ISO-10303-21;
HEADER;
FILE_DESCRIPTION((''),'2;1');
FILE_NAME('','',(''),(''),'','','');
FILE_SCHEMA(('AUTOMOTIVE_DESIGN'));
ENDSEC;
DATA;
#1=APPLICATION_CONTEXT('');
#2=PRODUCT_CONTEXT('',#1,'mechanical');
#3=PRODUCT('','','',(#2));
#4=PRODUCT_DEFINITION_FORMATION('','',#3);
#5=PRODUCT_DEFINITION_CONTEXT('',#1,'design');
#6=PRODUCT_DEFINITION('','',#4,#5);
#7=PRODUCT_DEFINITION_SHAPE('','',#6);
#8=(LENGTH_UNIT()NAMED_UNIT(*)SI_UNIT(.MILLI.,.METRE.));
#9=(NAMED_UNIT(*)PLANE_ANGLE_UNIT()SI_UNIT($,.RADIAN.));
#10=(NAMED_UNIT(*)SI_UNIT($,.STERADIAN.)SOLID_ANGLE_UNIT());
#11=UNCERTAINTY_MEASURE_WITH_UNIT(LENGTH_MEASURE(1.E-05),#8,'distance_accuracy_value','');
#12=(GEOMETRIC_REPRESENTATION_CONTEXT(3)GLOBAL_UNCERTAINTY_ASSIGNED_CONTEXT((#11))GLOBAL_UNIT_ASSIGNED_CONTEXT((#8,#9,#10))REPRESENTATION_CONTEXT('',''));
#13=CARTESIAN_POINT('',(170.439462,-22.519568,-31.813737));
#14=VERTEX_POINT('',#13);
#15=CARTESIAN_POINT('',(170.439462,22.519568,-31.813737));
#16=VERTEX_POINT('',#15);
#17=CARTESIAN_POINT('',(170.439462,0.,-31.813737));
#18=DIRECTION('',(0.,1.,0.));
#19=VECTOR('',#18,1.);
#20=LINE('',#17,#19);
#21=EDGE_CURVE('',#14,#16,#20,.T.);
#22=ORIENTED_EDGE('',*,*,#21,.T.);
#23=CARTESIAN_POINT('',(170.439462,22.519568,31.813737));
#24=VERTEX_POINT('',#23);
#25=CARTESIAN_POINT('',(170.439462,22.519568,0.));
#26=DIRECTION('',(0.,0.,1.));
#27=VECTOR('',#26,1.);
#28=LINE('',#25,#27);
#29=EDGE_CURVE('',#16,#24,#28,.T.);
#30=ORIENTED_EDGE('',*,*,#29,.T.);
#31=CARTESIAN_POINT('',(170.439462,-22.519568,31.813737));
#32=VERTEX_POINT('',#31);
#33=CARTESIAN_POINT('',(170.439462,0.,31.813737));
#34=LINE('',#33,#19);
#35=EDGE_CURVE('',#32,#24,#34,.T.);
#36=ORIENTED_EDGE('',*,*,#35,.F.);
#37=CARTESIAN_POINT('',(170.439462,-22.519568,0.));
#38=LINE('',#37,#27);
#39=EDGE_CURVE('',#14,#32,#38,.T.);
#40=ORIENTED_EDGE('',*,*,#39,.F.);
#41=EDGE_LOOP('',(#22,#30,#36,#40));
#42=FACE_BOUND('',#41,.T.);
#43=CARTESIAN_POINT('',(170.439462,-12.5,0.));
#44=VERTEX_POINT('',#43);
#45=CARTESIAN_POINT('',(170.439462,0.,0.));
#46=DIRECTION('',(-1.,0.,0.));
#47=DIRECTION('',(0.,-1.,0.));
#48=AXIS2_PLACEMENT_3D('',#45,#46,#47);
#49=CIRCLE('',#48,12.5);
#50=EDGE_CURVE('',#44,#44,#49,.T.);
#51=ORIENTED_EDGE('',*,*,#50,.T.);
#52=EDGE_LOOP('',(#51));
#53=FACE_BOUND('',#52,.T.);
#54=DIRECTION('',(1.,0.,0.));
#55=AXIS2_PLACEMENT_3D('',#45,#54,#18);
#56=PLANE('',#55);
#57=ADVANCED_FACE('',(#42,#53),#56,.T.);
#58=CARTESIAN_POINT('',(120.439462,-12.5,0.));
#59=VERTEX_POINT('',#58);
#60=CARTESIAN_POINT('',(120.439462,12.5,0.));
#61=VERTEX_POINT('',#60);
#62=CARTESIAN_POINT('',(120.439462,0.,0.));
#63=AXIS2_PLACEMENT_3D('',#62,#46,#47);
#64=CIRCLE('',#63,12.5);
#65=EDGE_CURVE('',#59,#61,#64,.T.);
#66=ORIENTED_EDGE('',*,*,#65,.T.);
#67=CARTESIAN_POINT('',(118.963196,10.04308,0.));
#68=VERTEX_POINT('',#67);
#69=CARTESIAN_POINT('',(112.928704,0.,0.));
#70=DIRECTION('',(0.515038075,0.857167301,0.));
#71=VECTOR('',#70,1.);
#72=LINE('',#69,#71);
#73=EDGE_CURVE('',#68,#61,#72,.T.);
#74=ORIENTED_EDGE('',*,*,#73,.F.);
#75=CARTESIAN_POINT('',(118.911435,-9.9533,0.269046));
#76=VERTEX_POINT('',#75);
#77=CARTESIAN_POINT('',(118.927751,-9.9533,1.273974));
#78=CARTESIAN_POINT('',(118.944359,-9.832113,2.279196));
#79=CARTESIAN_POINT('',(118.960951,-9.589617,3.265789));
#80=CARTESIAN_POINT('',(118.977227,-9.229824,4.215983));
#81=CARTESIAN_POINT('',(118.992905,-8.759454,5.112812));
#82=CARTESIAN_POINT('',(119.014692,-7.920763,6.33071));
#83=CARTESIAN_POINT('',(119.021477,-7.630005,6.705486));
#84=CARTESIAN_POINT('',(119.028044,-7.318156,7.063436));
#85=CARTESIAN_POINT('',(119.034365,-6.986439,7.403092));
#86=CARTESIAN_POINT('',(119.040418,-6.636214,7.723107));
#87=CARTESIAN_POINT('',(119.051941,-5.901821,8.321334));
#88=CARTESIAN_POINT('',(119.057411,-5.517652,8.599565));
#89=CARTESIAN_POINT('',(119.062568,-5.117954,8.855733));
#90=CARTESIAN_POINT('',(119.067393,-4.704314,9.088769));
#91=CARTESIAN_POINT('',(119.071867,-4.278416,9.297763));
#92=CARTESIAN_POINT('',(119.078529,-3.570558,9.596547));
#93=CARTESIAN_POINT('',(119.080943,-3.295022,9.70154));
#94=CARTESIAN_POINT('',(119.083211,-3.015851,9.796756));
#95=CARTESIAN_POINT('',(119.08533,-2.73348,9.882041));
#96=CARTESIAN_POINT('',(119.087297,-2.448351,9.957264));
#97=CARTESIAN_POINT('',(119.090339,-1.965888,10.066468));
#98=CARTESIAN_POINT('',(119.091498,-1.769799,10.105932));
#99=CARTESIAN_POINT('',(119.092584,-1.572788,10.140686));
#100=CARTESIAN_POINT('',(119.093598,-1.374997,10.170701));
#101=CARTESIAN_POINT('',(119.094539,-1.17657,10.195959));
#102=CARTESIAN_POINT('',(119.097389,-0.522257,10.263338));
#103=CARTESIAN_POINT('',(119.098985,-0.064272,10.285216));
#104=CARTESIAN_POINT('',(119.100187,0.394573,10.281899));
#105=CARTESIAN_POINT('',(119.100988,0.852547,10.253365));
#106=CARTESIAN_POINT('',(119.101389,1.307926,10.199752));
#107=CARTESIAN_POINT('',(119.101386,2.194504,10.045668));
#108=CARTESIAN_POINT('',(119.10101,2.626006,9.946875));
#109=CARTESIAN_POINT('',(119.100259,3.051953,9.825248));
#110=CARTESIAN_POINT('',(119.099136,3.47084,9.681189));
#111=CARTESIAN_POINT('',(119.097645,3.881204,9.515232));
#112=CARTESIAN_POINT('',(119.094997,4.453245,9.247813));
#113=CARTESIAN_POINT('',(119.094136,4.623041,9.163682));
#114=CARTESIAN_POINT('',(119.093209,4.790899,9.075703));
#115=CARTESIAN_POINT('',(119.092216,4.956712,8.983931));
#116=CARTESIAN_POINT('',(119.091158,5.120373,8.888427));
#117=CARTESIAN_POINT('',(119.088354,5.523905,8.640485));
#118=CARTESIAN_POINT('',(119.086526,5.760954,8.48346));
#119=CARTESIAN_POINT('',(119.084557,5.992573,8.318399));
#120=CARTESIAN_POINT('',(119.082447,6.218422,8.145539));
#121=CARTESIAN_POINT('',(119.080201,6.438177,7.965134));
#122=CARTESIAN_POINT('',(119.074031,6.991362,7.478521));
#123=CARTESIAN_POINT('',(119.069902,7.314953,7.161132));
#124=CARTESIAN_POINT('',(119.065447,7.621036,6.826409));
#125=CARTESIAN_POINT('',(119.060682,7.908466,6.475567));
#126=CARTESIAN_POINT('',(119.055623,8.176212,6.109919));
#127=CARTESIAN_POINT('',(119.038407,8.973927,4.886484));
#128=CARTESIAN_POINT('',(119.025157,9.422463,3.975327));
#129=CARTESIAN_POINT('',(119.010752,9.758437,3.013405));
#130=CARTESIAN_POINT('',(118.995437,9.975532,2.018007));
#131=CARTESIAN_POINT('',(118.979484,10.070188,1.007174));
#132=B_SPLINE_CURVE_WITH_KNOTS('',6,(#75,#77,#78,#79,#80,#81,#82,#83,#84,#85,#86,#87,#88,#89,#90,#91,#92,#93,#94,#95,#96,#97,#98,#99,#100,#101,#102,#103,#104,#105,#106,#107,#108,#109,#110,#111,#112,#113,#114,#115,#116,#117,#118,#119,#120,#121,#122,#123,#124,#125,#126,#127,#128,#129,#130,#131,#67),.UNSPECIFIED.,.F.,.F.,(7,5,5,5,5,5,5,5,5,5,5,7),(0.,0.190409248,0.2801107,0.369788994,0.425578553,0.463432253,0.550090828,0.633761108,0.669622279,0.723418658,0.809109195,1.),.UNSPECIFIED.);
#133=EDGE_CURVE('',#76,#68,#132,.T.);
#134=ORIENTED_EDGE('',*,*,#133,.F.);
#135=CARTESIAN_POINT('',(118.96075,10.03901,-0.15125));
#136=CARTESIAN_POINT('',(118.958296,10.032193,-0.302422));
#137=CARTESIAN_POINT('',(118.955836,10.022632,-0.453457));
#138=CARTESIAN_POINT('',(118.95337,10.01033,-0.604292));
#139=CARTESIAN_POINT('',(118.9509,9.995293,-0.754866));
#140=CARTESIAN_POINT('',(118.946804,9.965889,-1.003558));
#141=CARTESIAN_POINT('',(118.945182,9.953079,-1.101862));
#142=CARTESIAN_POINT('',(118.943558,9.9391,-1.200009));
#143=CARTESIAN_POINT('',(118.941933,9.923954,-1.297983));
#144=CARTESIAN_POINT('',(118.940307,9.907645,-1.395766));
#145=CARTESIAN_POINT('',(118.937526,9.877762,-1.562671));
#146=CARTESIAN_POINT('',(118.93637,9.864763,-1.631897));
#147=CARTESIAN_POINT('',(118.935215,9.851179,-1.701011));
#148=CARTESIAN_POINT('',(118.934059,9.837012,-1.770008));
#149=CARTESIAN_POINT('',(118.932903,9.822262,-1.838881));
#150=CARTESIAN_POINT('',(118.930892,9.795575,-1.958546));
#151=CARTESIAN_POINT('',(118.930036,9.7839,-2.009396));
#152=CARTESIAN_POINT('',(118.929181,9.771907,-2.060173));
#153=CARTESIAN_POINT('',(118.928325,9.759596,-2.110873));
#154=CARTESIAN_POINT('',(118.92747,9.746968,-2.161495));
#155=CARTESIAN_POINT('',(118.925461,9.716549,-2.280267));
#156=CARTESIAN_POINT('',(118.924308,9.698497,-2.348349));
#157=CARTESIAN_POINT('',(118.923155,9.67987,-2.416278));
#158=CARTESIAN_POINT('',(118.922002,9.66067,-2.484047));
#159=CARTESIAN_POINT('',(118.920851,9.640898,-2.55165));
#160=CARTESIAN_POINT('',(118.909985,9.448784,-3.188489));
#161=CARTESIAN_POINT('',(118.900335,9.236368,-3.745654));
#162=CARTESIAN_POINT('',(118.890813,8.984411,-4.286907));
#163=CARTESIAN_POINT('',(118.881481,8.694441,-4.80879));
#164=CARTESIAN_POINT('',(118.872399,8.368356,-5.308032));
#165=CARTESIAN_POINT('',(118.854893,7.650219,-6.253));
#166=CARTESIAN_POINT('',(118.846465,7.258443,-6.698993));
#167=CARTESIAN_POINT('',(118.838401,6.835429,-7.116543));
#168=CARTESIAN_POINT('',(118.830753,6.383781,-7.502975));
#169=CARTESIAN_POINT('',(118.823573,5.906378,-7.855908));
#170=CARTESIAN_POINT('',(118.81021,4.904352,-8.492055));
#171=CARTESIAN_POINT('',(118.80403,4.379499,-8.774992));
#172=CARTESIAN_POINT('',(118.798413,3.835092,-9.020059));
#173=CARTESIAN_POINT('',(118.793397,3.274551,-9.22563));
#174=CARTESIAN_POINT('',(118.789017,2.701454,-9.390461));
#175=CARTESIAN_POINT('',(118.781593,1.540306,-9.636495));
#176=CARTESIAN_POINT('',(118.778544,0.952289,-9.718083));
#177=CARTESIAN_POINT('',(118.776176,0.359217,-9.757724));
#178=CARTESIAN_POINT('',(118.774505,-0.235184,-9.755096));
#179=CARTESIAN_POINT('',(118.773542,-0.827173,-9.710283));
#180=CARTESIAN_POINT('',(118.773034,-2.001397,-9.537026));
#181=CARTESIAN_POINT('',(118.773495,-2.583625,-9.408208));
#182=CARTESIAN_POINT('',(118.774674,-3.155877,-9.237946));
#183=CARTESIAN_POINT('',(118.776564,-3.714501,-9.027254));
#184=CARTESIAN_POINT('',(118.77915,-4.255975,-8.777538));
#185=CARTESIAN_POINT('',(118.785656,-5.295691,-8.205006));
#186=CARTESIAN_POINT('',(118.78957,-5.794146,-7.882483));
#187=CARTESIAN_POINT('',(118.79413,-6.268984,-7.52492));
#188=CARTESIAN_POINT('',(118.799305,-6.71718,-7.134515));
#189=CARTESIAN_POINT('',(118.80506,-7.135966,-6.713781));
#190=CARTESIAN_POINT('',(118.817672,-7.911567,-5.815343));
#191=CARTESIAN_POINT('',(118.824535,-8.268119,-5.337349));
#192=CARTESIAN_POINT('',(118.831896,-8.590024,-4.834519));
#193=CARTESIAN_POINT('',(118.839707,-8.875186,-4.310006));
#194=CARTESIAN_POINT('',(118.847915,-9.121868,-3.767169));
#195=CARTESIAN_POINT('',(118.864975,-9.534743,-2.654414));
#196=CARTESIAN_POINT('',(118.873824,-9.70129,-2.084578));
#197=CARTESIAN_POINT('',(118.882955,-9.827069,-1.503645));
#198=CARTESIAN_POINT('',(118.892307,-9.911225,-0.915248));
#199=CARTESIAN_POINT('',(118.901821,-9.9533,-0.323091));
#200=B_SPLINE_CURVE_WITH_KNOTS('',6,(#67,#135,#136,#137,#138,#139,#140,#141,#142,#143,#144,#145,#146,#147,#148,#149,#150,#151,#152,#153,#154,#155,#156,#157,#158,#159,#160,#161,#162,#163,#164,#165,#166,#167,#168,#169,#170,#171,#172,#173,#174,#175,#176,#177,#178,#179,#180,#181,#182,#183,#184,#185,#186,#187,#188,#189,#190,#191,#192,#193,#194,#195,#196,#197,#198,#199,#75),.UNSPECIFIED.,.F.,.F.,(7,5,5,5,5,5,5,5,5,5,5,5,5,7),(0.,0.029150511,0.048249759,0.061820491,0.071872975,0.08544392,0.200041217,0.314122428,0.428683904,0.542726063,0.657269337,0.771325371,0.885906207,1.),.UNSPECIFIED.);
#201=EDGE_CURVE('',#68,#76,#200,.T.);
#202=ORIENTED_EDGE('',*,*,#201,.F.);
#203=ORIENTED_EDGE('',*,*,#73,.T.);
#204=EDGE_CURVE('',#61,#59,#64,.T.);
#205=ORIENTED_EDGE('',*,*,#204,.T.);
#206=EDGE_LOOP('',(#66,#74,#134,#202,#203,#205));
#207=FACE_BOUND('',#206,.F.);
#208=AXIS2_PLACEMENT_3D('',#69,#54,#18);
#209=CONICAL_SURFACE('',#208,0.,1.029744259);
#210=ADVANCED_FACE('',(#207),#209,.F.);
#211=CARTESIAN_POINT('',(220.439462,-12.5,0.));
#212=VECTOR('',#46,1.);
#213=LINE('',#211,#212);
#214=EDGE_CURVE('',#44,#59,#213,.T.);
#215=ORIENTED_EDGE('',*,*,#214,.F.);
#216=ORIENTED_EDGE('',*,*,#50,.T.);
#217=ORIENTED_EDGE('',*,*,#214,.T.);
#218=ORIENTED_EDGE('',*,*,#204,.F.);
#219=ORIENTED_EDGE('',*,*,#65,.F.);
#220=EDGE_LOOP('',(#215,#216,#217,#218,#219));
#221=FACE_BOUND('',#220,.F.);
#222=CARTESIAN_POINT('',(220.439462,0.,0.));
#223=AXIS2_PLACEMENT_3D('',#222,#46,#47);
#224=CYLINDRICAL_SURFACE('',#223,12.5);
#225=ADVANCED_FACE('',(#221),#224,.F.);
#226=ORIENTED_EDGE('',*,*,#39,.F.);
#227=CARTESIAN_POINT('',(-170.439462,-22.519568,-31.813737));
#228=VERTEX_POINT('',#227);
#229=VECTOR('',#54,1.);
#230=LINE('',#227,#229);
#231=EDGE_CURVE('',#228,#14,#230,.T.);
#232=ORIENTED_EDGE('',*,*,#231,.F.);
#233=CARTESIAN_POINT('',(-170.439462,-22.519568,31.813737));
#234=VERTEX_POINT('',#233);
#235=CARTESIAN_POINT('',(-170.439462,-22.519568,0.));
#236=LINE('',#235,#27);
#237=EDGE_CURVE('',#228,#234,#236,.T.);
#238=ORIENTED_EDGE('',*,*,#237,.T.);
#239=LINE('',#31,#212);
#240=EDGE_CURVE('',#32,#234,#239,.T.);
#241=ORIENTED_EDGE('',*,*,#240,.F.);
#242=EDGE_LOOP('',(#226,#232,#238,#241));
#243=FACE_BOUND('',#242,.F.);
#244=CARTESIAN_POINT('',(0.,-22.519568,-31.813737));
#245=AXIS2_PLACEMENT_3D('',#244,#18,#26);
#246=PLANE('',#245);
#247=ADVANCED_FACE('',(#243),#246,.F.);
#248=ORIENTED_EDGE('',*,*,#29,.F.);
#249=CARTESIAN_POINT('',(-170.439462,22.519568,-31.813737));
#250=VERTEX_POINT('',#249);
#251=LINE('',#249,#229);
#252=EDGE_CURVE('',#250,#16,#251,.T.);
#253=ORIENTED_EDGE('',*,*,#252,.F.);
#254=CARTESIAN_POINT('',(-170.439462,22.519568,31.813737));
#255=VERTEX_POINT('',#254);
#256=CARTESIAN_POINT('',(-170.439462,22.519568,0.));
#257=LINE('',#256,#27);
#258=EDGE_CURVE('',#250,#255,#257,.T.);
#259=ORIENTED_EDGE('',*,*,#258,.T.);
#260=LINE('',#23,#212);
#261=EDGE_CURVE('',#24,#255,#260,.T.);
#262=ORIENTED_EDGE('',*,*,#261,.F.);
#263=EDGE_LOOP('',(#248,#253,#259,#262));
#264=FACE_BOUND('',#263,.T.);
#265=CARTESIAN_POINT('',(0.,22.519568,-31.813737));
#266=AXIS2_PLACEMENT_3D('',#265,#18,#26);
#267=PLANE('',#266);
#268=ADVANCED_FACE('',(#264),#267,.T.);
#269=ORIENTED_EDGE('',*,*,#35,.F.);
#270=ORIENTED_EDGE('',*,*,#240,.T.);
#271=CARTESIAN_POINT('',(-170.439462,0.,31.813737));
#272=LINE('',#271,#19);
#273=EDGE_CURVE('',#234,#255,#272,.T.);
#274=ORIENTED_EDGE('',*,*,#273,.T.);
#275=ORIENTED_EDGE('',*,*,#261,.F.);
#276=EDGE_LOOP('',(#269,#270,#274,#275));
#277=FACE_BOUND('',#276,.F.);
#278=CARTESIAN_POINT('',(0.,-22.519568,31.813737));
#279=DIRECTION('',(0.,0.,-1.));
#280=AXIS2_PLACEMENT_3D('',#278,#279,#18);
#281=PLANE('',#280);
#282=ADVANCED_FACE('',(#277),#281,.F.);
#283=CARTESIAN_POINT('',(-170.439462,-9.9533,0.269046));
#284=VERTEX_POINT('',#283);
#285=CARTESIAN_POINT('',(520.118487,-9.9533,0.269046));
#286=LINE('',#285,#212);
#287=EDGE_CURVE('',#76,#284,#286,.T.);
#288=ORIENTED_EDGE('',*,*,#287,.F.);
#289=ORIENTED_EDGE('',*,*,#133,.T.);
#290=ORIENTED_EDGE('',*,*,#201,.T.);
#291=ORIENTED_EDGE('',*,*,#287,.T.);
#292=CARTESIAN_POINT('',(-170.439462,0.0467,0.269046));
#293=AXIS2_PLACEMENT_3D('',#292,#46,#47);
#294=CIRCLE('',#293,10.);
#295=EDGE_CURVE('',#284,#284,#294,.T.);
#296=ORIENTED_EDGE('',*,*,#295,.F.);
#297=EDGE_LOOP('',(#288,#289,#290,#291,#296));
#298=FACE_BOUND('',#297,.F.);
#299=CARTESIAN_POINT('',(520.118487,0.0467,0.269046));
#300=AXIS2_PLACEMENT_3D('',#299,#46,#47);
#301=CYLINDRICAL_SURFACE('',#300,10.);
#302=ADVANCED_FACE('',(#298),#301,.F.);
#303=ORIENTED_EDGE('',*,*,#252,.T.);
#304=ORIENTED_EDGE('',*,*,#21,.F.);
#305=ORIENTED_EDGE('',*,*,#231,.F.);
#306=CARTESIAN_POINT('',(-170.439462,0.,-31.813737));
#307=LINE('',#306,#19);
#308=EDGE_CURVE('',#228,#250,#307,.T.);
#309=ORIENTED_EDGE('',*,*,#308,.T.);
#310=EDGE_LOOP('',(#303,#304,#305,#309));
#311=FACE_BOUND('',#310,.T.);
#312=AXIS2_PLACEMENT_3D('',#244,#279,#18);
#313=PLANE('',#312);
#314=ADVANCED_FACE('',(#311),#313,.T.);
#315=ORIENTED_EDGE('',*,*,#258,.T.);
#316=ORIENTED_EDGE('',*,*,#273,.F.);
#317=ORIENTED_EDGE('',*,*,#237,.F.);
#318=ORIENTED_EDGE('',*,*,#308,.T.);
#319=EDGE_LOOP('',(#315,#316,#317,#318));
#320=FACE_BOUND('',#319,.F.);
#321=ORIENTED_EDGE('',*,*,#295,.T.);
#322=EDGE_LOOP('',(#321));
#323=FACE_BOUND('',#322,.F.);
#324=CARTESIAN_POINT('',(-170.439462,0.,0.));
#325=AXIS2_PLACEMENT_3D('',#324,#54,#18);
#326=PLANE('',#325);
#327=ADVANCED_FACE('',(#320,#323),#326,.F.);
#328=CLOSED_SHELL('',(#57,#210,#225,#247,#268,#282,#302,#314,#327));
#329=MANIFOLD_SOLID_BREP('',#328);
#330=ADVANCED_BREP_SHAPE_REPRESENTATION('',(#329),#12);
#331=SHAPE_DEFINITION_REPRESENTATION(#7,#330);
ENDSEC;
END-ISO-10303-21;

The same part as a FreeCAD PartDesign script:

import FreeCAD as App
import Part
import Sketcher

V = App.Vector
Q = App.Units.Quantity

doc = App.newDocument("Part")
params = doc.addObject("Spreadsheet::Sheet", "Params")
for row, (alias, value) in enumerate([
    ("pad1_length", "340.878924 mm"),
    ("sketch2_diameter", "25 mm"),
    ("hole_diameter", "25 mm"),
    ("hole_depth", "50 mm"),
    ("sketch3_diameter", "20 mm"),
    ("hole2_diameter", "20 mm"),
], start=1):
    params.set(f"A{row}", alias)
    params.set(f"B{row}", "=" + value)
    params.setAlias(f"B{row}", alias)

body = doc.addObject("PartDesign::Body", "Body")

sketch1 = body.newObject("Sketcher::SketchObject", "Sketch")
sketch1.AttachmentSupport = (doc.getObject("YZ_Plane"), [""])
sketch1.MapMode = "FlatFace"
sketch1.addGeometry([
    Part.LineSegment(V(-23, 32, 0), V(-23, -32, 0)),
    Part.LineSegment(V(-23, -32, 0), V(23, -32, 0)),
    Part.LineSegment(V(23, -32, 0), V(23, 32, 0)),
    Part.LineSegment(V(23, 32, 0), V(-23, 32, 0)),
], False)
sketch1.addConstraint([
    Sketcher.Constraint("Coincident", 0, 2, 1, 1),
    Sketcher.Constraint("Coincident", 1, 2, 2, 1),
    Sketcher.Constraint("Coincident", 2, 2, 3, 1),
    Sketcher.Constraint("Coincident", 3, 2, 0, 1),
    Sketcher.Constraint("Vertical", 0),
    Sketcher.Constraint("Horizontal", 1),
    Sketcher.Constraint("Vertical", 2),
    Sketcher.Constraint("Horizontal", 3),
    Sketcher.Constraint("Symmetric", 0, 2, 2, 2, -1, 1),
    Sketcher.Constraint("DistanceX", 1, 1, 1, 2, Q("45.039136 mm")),
    Sketcher.Constraint("DistanceY", 0, 2, 0, 1, Q("63.627474 mm")),
])
pad1 = body.newObject("PartDesign::Pad", "Pad")
pad1.Profile = sketch1
pad1.setExpression("Length", "Params.pad1_length")
pad1.Midplane = True

sketch2 = body.newObject("Sketcher::SketchObject", "Sketch001")
sketch2.AttachmentSupport = (doc.getObject("YZ_Plane"), [""])
sketch2.MapMode = "FlatFace"
sketch2.AttachmentOffset = App.Placement(V(0, 0, 170.439462), App.Rotation())
sketch2.addGeometry(Part.Circle(V(0, 0, 0), V(0, 0, 1), 12), False)
sketch2.addConstraint([
    Sketcher.Constraint("Coincident", 0, 3, -1, 1),
    Sketcher.Constraint("Diameter", 0, Q("25 mm")),
])
sketch2.setExpression("Constraints[1]", "Params.sketch2_diameter")
doc.recompute()
hole = body.newObject("PartDesign::Hole", "Hole")
hole.Profile = sketch2
hole.ThreadType = "None"
hole.setExpression("Diameter", "Params.hole_diameter")
hole.DepthType = "Dimension"
hole.setExpression("Depth", "Params.hole_depth")
hole.DrillPoint = "Angled"
hole.DrillPointAngle = 118

sketch3 = body.newObject("Sketcher::SketchObject", "Sketch002")
sketch3.AttachmentSupport = (doc.getObject("YZ_Plane"), [""])
sketch3.MapMode = "FlatFace"
sketch3.AttachmentOffset = App.Placement(V(0, 0, 170.439462), App.Rotation())
sketch3.addGeometry(Part.Circle(V(0, 0, 0), V(0, 0, 1), 10), False)
sketch3.addConstraint([
    Sketcher.Constraint("Diameter", 0, Q("20 mm")),
    Sketcher.Constraint("DistanceX", -1, 1, 0, 3, Q("0.0467 mm")),
    Sketcher.Constraint("DistanceY", -1, 1, 0, 3, Q("0.269046 mm")),
])
sketch3.setExpression("Constraints[0]", "Params.sketch3_diameter")
doc.recompute()
hole2 = body.newObject("PartDesign::Hole", "Hole001")
hole2.Profile = sketch3
hole2.ThreadType = "None"
hole2.setExpression("Diameter", "Params.hole2_diameter")
hole2.DepthType = "ThroughAll"

doc.recompute()
